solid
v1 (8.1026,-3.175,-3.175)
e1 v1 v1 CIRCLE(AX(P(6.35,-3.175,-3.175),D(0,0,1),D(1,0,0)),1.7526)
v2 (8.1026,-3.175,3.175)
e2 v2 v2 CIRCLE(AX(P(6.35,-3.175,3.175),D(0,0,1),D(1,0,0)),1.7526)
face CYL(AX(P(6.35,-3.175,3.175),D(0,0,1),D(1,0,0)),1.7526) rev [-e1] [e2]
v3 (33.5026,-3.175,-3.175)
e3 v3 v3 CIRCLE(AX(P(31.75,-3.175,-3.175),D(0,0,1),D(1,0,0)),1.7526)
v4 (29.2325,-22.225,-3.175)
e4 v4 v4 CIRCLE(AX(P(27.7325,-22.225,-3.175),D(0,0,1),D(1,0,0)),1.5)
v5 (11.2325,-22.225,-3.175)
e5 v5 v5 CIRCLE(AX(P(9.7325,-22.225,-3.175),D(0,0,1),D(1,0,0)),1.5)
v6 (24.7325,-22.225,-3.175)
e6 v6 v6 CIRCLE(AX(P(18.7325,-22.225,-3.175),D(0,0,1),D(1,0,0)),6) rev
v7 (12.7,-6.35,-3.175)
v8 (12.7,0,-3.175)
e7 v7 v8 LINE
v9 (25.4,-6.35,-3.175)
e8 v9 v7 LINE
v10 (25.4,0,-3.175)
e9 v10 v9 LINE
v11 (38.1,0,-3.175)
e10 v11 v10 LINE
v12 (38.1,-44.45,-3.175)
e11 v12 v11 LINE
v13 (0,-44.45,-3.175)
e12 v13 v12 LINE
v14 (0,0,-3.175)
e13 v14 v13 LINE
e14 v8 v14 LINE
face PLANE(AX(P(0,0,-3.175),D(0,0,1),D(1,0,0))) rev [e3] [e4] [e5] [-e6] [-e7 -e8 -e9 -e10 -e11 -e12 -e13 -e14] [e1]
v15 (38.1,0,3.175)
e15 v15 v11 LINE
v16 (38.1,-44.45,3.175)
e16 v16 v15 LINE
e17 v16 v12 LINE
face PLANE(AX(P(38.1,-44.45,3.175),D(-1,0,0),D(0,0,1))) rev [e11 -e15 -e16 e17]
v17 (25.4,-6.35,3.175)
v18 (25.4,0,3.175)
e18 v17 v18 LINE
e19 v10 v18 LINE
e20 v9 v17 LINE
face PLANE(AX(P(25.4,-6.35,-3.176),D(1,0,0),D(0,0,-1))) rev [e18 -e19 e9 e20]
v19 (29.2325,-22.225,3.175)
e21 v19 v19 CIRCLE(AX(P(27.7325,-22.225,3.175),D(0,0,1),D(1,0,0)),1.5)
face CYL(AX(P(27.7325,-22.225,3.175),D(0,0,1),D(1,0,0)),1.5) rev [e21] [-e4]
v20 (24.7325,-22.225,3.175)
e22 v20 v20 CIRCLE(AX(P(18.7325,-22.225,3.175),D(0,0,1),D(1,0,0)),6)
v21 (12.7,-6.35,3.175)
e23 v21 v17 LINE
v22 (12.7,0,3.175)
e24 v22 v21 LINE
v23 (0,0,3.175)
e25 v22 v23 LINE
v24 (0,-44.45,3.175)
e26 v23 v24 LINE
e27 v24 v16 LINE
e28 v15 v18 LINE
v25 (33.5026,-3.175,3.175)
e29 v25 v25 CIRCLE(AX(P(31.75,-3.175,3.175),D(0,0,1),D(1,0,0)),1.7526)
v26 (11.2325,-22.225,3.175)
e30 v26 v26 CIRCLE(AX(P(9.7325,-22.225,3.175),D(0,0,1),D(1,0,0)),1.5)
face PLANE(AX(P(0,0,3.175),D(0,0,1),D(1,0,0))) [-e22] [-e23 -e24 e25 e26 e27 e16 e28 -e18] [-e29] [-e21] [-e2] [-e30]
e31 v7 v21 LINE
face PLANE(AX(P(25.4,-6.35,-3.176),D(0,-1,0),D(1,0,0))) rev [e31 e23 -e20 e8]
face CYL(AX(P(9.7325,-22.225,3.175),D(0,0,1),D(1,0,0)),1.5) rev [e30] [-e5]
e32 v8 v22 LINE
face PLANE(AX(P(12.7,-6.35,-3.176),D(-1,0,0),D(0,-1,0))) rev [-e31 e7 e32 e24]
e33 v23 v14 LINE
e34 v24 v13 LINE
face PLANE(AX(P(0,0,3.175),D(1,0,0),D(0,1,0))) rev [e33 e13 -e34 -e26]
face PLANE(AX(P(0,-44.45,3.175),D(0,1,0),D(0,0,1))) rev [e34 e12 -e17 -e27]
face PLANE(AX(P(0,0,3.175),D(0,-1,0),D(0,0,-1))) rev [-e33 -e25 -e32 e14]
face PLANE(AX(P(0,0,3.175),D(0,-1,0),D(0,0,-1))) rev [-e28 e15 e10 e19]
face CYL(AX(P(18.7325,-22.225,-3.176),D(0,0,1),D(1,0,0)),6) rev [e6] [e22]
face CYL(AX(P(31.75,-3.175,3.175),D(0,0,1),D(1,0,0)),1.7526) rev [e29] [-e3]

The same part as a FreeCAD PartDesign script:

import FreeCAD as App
import Part
import Sketcher

V = App.Vector
Q = App.Units.Quantity

doc = App.newDocument("Part")
body = doc.addObject("PartDesign::Body", "Body")

# Sketch on XY plane
sketch1 = body.newObject("Sketcher::SketchObject", "Sketch")
sketch1.AttachmentSupport = (doc.getObject("XY_Plane"), [""])
sketch1.MapMode = "FlatFace"
sketch1.addGeometry([
    Part.LineSegment(V(0, 0, 0), V(0, -44, 0)),
    Part.LineSegment(V(0, -44, 0), V(38, -44, 0)),
    Part.LineSegment(V(38, -44, 0), V(38, 0, 0)),
    Part.LineSegment(V(38, 0, 0), V(0, 0, 0)),
], False)
sketch1.addConstraint([
    Sketcher.Constraint("Coincident", 0, 2, 1, 1),
    Sketcher.Constraint("Coincident", 1, 2, 2, 1),
    Sketcher.Constraint("Coincident", 2, 2, 3, 1),
    Sketcher.Constraint("Coincident", 3, 2, 0, 1),
    Sketcher.Constraint("Vertical", 0),
    Sketcher.Constraint("Horizontal", 1),
    Sketcher.Constraint("Vertical", 2),
    Sketcher.Constraint("Horizontal", 3),
    Sketcher.Constraint("Coincident", 3, 2, -1, 1),
    Sketcher.Constraint("DistanceX", 1, 1, 1, 2, Q("1.5 in")),
    Sketcher.Constraint("DistanceY", 0, 2, 0, 1, Q("1.75 in")),
])
pad1 = body.newObject("PartDesign::Pad", "Pad")
pad1.Profile = sketch1
pad1.Length = Q("0.25 in")
pad1.Midplane = True

# Sketch on XY plane
sketch2 = body.newObject("Sketcher::SketchObject", "Sketch001")
sketch2.AttachmentSupport = (doc.getObject("XY_Plane"), [""])
sketch2.MapMode = "FlatFace"
sketch2.AttachmentOffset = App.Placement(V(0, 0, 0.125 * 25.4), App.Rotation())
sketch2.addGeometry([
    Part.Circle(V(6.3, -3.2, 0), V(0, 0, 1), 1.8),
    Part.Circle(V(31.8, -3.2, 0), V(0, 0, 1), 1.8),
], False)
sketch2.addConstraint([
    Sketcher.Constraint("Equal", 0, 1),
    Sketcher.Constraint("Horizontal", 0, 3, 1, 3),
    Sketcher.Constraint("Diameter", 0, Q("0.138 in")),
    Sketcher.Constraint("DistanceX", 0, 3, 1, 3, Q("1 in")),
    Sketcher.Constraint("DistanceX", -1, 1, 0, 3, Q("0.25 in")),
    Sketcher.Constraint("DistanceY", 0, 3, -1, 1, Q("0.125 in")),
])
doc.recompute()
hole = body.newObject("PartDesign::Hole", "Hole")
hole.Profile = sketch2
hole.ThreadType = "None"
hole.Diameter = Q("0.138 in")
hole.DepthType = "ThroughAll"

# Sketch on XY plane
sketch3 = body.newObject("Sketcher::SketchObject", "Sketch002")
sketch3.AttachmentSupport = (doc.getObject("XY_Plane"), [""])
sketch3.MapMode = "FlatFace"
sketch3.AttachmentOffset = App.Placement(V(0, 0, 0.125 * 25.4), App.Rotation())
sketch3.addGeometry([
    Part.LineSegment(V(13, 0, 0), V(13, -6, 0)),
    Part.LineSegment(V(13, -6, 0), V(25, -6, 0)),
    Part.LineSegment(V(25, -6, 0), V(25, 0, 0)),
    Part.LineSegment(V(25, 0, 0), V(13, 0, 0)),
], False)
sketch3.addConstraint([
    Sketcher.Constraint("Coincident", 0, 2, 1, 1),
    Sketcher.Constraint("Coincident", 1, 2, 2, 1),
    Sketcher.Constraint("Coincident", 2, 2, 3, 1),
    Sketcher.Constraint("Coincident", 3, 2, 0, 1),
    Sketcher.Constraint("Vertical", 0),
    Sketcher.Constraint("Horizontal", 1),
    Sketcher.Constraint("Vertical", 2),
    Sketcher.Constraint("Horizontal", 3),
    Sketcher.Constraint("PointOnObject", 2, 2, -1),
    Sketcher.Constraint("DistanceX", 1, 1, 1, 2, Q("0.5 in")),
    Sketcher.Constraint("DistanceX", -1, 1, 1, 2, Q("1 in")),
    Sketcher.Constraint("DistanceY", 0, 2, 0, 1, Q("0.25 in")),
])
pocket1 = body.newObject("PartDesign::Pocket", "Pocket")
pocket1.Profile = sketch3
pocket1.Type = "UpToFirst"

# Sketch on XY plane
sketch4 = body.newObject("Sketcher::SketchObject", "Sketch003")
sketch4.AttachmentSupport = (doc.getObject("XY_Plane"), [""])
sketch4.MapMode = "FlatFace"
sketch4.AttachmentOffset = App.Placement(V(0, 0, 0.125 * 25.4), App.Rotation())
sketch4.addGeometry(Part.Circle(V(19, -22, 0), V(0, 0, 1), 6), False)
sketch4.addConstraint([
    Sketcher.Constraint("Diameter", 0, 12.0),
    Sketcher.Constraint("DistanceY", 0, 3, -1, 1, Q("0.875 in")),
    Sketcher.Constraint("DistanceX", -1, 1, 0, 3, Q("0.7375 in")),
])
pocket2 = body.newObject("PartDesign::Pocket", "Pocket001")
pocket2.Profile = sketch4
pocket2.Type = "UpToFirst"

# Sketch on XY plane
sketch5 = body.newObject("Sketcher::SketchObject", "Sketch004")
sketch5.AttachmentSupport = (doc.getObject("XY_Plane"), [""])
sketch5.MapMode = "FlatFace"
sketch5.AttachmentOffset = App.Placement(V(0, 0, 0.125 * 25.4), App.Rotation())
sketch5.addGeometry([
    Part.Circle(V(27.7, -22.2, 0), V(0, 0, 1), 1.5),
    Part.Circle(V(9.7, -22.2, 0), V(0, 0, 1), 1.5),
], False)
sketch5.addConstraint([
    Sketcher.Constraint("Equal", 0, 1),
    Sketcher.Constraint("Horizontal", 0, 3, 1, 3),
    Sketcher.Constraint("Diameter", 0, 3.0),
    Sketcher.Constraint("DistanceY", 0, 3, -1, 1, Q("0.875 in")),
    Sketcher.Constraint("DistanceX", -1, 1, 0, 3, 27.7325),
    Sketcher.Constraint("DistanceX", -1, 1, 1, 3, 9.7325),
])
doc.recompute()
hole2 = body.newObject("PartDesign::Hole", "Hole001")
hole2.Profile = sketch5
hole2.ThreadType = "None"
hole2.Diameter = 3
hole2.DepthType = "ThroughAll"

doc.recompute()
